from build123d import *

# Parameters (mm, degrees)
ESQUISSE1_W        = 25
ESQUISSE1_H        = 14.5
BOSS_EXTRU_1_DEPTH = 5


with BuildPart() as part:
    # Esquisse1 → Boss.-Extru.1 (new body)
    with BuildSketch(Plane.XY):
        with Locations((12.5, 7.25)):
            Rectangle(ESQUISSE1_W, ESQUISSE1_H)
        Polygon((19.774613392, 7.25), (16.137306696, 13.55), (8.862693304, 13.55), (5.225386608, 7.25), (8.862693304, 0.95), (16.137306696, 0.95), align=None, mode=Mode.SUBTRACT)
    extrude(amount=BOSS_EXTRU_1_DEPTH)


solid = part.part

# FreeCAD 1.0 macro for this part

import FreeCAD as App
import Part
import Sketcher
from FreeCAD import Vector
Q = App.Units.Quantity


def add_polygon(sketch, points):
    """Adds a closed chain of lines whose ends are joined by coincident constraints."""
    first, n = sketch.GeometryCount, len(points)
    for a, b in zip(points, points[1:] + points[:1]):
        sketch.addGeometry(Part.LineSegment(App.Vector(*a, 0), App.Vector(*b, 0)), False)
    for i in range(n):
        sketch.addConstraint(Sketcher.Constraint("Coincident", first + i, 2, first + (i + 1) % n, 1))

doc = App.newDocument("Part")
body = doc.addObject("PartDesign::Body", "Body")

sketch1 = body.newObject("Sketcher::SketchObject", "Sketch")
sketch1.AttachmentSupport = (doc.getObject("XY_Plane"), [""])
sketch1.MapMode = "FlatFace"
add_polygon(sketch1, [(0, 14), (0, 0), (25, 0), (25, 14)])
add_polygon(sketch1, [(16, 14), (20, 7), (16, 1), (9, 1), (5, 7), (9, 14)])
sketch1.addConstraint([
    Sketcher.Constraint("Vertical", 0),
    Sketcher.Constraint("Horizontal", 1),
    Sketcher.Constraint("Vertical", 2),
    Sketcher.Constraint("Horizontal", 3),
    Sketcher.Constraint("Horizontal", 6),
    Sketcher.Constraint("Horizontal", 9),
    Sketcher.Constraint("Coincident", 0, 2, -1, 1),
    Sketcher.Constraint("Parallel", 4, 7),
    Sketcher.Constraint("Parallel", 5, 8),
    Sketcher.Constraint("Horizontal", 4, 2, 7, 2),
    Sketcher.Constraint("Vertical", 6, 2, 8, 2),
    Sketcher.Constraint("Vertical", 5, 2, 9, 2),
    Sketcher.Constraint("DistanceX", 1, 1, 1, 2, Q("25 mm")),
    Sketcher.Constraint("Angle", 4, Q("-60 deg")),
    Sketcher.Constraint("DistanceY", 0, 2, 0, 1, Q("14.5 mm")),
    Sketcher.Constraint("DistanceY", 5, 2, 4, 2, Q("6.3 mm")),
    Sketcher.Constraint("DistanceY", -1, 1, 4, 2, Q("7.25 mm")),
    Sketcher.Constraint("DistanceX", 6, 2, 6, 1, Q("7.274613 mm")),
    Sketcher.Constraint("DistanceX", -1, 1, 4, 2, Q("19.774613 mm")),
])
pad1 = body.newObject("PartDesign::Pad", "Pad")
pad1.Profile = sketch1
pad1.Length = 5

doc.recompute()
